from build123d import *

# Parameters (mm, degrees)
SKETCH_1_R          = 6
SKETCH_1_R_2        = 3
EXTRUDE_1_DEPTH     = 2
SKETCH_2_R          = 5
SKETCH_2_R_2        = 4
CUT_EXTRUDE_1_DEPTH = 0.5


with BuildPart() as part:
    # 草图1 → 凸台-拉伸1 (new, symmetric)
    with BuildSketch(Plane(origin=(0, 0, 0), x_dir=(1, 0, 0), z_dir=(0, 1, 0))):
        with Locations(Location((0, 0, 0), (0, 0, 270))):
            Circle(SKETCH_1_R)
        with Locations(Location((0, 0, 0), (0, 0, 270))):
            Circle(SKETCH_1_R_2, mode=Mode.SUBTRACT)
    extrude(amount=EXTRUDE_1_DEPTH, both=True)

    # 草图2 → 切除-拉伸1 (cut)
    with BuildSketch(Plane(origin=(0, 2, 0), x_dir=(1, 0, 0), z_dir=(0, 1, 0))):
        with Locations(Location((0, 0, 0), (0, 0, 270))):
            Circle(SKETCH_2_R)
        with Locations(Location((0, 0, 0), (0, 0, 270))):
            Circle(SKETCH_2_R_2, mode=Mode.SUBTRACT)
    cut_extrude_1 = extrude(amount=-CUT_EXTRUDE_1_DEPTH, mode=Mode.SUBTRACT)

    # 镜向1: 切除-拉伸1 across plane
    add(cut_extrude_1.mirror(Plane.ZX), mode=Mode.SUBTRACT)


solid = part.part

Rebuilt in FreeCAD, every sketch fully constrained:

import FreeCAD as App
import Part
import Sketcher
from FreeCAD import Vector
Q = App.Units.Quantity

doc = App.newDocument("Part")
body = doc.addObject("PartDesign::Body", "Body")

# Sketch on XZ plane
sketch1 = body.newObject("Sketcher::SketchObject", "Sketch")
sketch1.AttachmentSupport = (doc.getObject("XZ_Plane"), [""])
sketch1.MapMode = "FlatFace"
sketch1.addGeometry(Part.Circle(Vector(0, 0, 0), Vector(0, 0, 1), 6), False)
sketch1.addGeometry(Part.Circle(Vector(0, 0, 0), Vector(0, 0, 1), 3), False)
sketch1.addConstraint(Sketcher.Constraint("Coincident", 0, 3, -1, 1))
sketch1.addConstraint(Sketcher.Constraint("Coincident", 1, 3, -1, 1))
sketch1.addConstraint(Sketcher.Constraint("Diameter", 0, Q("12 mm")))
sketch1.addConstraint(Sketcher.Constraint("Diameter", 1, Q("6 mm")))
pad1 = body.newObject("PartDesign::Pad", "Pad")
pad1.Profile = sketch1
pad1.Length = 4
pad1.Midplane = True

# Sketch on XZ plane
sketch2 = body.newObject("Sketcher::SketchObject", "Sketch001")
sketch2.AttachmentSupport = (doc.getObject("XZ_Plane"), [""])
sketch2.MapMode = "FlatFace"
sketch2.AttachmentOffset = App.Placement(Vector(0, 0, -2), App.Rotation())
sketch2.addGeometry(Part.Circle(Vector(0, 0, 0), Vector(0, 0, 1), 5), False)
sketch2.addGeometry(Part.Circle(Vector(0, 0, 0), Vector(0, 0, 1), 4), False)
sketch2.addConstraint(Sketcher.Constraint("Coincident", 0, 3, -1, 1))
sketch2.addConstraint(Sketcher.Constraint("Coincident", 1, 3, -1, 1))
sketch2.addConstraint(Sketcher.Constraint("Diameter", 0, Q("10 mm")))
sketch2.addConstraint(Sketcher.Constraint("Diameter", 1, Q("8 mm")))
pocket1 = body.newObject("PartDesign::Pocket", "Pocket")
pocket1.Profile = sketch2
pocket1.Length = 0.5
pocket1.Reversed = True
doc.recompute()

mirrored = body.newObject("PartDesign::Mirrored", "Mirrored")
mirrored.Originals = [pocket1]
mirrored.MirrorPlane = (doc.getObject("XZ_Plane"), [""])
body.Tip = mirrored

doc.recompute()
